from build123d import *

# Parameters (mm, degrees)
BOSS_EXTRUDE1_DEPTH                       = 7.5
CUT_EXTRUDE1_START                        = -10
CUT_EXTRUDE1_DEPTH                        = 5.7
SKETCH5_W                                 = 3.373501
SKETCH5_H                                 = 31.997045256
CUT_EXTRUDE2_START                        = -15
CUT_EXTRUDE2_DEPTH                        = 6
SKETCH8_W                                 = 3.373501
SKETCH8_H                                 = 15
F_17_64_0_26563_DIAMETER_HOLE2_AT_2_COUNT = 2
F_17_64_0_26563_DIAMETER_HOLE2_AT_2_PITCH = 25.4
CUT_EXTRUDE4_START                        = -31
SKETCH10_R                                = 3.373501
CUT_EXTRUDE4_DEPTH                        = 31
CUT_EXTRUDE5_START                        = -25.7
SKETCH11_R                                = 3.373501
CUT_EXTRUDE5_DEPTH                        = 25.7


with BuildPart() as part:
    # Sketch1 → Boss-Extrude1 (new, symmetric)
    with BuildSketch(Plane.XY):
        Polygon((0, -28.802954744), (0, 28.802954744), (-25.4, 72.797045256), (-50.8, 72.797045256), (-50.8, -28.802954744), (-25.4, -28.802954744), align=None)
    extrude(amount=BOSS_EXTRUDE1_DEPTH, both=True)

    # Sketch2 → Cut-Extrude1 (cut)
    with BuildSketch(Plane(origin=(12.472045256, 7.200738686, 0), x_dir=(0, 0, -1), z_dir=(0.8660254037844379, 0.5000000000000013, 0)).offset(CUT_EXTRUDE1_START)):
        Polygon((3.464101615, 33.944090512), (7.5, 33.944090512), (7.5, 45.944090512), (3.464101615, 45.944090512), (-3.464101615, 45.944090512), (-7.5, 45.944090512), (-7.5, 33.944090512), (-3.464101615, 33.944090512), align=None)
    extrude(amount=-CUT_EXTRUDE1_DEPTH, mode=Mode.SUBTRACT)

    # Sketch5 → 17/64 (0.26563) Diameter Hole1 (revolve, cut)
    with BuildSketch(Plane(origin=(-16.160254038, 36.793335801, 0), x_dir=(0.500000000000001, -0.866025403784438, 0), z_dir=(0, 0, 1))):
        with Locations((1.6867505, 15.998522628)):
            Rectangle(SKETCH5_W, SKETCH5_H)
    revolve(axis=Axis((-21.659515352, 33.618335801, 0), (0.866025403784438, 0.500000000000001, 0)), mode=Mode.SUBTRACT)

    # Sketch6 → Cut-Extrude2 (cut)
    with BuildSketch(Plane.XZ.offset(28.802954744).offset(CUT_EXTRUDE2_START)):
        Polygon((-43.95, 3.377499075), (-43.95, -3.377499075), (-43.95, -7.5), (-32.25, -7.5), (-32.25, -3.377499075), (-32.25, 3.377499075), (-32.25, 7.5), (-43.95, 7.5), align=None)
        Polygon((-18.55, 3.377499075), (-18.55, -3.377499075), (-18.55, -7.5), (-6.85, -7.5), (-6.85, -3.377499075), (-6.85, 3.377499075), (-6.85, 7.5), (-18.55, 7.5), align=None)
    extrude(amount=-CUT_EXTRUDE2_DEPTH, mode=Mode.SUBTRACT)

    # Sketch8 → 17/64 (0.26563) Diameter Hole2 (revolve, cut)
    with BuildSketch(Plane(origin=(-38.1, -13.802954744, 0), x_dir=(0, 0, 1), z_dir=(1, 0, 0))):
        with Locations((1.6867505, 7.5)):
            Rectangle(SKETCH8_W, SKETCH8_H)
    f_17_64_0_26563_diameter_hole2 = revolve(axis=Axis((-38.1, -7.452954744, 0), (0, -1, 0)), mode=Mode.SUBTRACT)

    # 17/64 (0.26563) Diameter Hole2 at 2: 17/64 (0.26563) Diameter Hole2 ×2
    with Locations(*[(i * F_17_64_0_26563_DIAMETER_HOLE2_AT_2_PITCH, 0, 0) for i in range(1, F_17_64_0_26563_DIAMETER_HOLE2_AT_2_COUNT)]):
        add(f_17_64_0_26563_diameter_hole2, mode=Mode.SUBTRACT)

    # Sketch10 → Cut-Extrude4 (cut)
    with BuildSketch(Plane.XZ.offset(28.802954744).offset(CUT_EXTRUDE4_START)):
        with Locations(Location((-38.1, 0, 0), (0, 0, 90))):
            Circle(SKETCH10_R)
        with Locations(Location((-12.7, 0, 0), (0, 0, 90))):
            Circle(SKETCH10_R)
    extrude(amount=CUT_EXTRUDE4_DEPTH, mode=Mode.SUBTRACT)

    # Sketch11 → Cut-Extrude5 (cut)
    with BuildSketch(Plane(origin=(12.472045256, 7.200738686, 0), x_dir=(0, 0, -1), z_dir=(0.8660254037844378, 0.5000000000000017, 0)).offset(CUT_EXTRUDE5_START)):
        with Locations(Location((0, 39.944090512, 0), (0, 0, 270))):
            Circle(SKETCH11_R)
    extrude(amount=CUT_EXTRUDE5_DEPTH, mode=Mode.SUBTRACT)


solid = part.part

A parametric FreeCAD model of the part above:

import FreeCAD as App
import Part
import Sketcher
Q = App.Units.Quantity

doc = App.newDocument("Part")
body = doc.addObject("PartDesign::Body", "Body")

# Sketch on XY plane
sketch1 = doc.addObject("Sketcher::SketchObject", "Sketch")
body.addObject(sketch1)
sketch1.AttachmentSupport = (doc.XY_Plane, [""])
sketch1.MapMode = "FlatFace"
sketch1.addGeometry(Part.LineSegment(App.Vector(0, -29, 0), App.Vector(0, 29, 0)), False)
sketch1.addGeometry(Part.LineSegment(App.Vector(0, 29, 0), App.Vector(-25, 73, 0)), False)
sketch1.addGeometry(Part.LineSegment(App.Vector(-25, 73, 0), App.Vector(-51, 73, 0)), False)
sketch1.addGeometry(Part.LineSegment(App.Vector(-51, 73, 0), App.Vector(-51, -29, 0)), False)
sketch1.addGeometry(Part.LineSegment(App.Vector(-51, -29, 0), App.Vector(0, -29, 0)), False)
sketch1.addConstraint(Sketcher.Constraint("Coincident", 0, 2, 1, 1))
sketch1.addConstraint(Sketcher.Constraint("Coincident", 1, 2, 2, 1))
sketch1.addConstraint(Sketcher.Constraint("Coincident", 2, 2, 3, 1))
sketch1.addConstraint(Sketcher.Constraint("Coincident", 3, 2, 4, 1))
sketch1.addConstraint(Sketcher.Constraint("Coincident", 4, 2, 0, 1))
sketch1.addConstraint(Sketcher.Constraint("Vertical", 0))
sketch1.addConstraint(Sketcher.Constraint("Horizontal", 2))
sketch1.addConstraint(Sketcher.Constraint("Vertical", 3))
sketch1.addConstraint(Sketcher.Constraint("Horizontal", 4))
sketch1.addConstraint(Sketcher.Constraint("Symmetric", 0, 2, 4, 2, -1, 1))
sketch1.addConstraint(Sketcher.Constraint("Angle", 1, Q("120 deg")))
sketch1.addConstraint(Sketcher.Constraint("DistanceX", 2, 2, 2, 1, Q("25.4 mm")))
sketch1.addConstraint(Sketcher.Constraint("DistanceX", 4, 1, 4, 2, Q("50.8 mm")))
sketch1.addConstraint(Sketcher.Constraint("DistanceY", 3, 2, 3, 1, Q("101.6 mm")))
pad1 = doc.addObject("PartDesign::Pad", "Pad")
body.addObject(pad1)
pad1.Profile = sketch1
pad1.Length = 15
pad1.Midplane = True

# Sketch on an angled plane
sketch2 = doc.addObject("Sketcher::SketchObject", "Sketch001")
body.addObject(sketch2)
sketch2.Placement = App.Placement(App.Vector(3.811791, 2.200739, 0), App.Rotation(App.Vector(0, 0, -1), App.Vector(-0.5, 0.866025404, 0), App.Vector(0.866025404, 0.5, 0), "ZXY"))
sketch2.addGeometry(Part.LineSegment(App.Vector(8, 34, 0), App.Vector(8, 46, 0)), False)
sketch2.addGeometry(Part.LineSegment(App.Vector(8, 46, 0), App.Vector(-8, 46, 0)), False)
sketch2.addGeometry(Part.LineSegment(App.Vector(-8, 46, 0), App.Vector(-8, 34, 0)), False)
sketch2.addGeometry(Part.LineSegment(App.Vector(-8, 34, 0), App.Vector(8, 34, 0)), False)
sketch2.addConstraint(Sketcher.Constraint("Coincident", 0, 2, 1, 1))
sketch2.addConstraint(Sketcher.Constraint("Coincident", 1, 2, 2, 1))
sketch2.addConstraint(Sketcher.Constraint("Coincident", 2, 2, 3, 1))
sketch2.addConstraint(Sketcher.Constraint("Coincident", 3, 2, 0, 1))
sketch2.addConstraint(Sketcher.Constraint("Vertical", 0))
sketch2.addConstraint(Sketcher.Constraint("Horizontal", 1))
sketch2.addConstraint(Sketcher.Constraint("Vertical", 2))
sketch2.addConstraint(Sketcher.Constraint("Horizontal", 3))
sketch2.addConstraint(Sketcher.Constraint("DistanceX", 1, 2, 1, 1, Q("15 mm")))
sketch2.addConstraint(Sketcher.Constraint("DistanceY", 0, 1, 0, 2, Q("12 mm")))
sketch2.addConstraint(Sketcher.Constraint("DistanceX", -1, 1, 0, 2, Q("7.5 mm")))
sketch2.addConstraint(Sketcher.Constraint("DistanceY", -1, 1, 0, 2, Q("45.944091 mm")))
pocket1 = doc.addObject("PartDesign::Pocket", "Pocket")
body.addObject(pocket1)
pocket1.Profile = sketch2
pocket1.Length = 5.7

# Sketch on XY plane
sketch3 = doc.addObject("Sketcher::SketchObject", "Sketch002")
body.addObject(sketch3)
sketch3.AttachmentSupport = (doc.XY_Plane, [""])
sketch3.MapMode = "FlatFace"
sketch3.addGeometry(Part.LineSegment(App.Vector(11.6, 52.8, 0), App.Vector(-16.2, 36.8, 0)), False)
sketch3.addGeometry(Part.LineSegment(App.Vector(-16.2, 36.8, 0), App.Vector(-14.5, 33.9, 0)), False)
sketch3.addGeometry(Part.LineSegment(App.Vector(-14.5, 33.9, 0), App.Vector(13.2, 49.9, 0)), False)
sketch3.addGeometry(Part.LineSegment(App.Vector(13.2, 49.9, 0), App.Vector(11.6, 52.8, 0)), False)
sketch3.addGeometry(Part.LineSegment(App.Vector(-16.2, 36.8, 0), App.Vector(11.6, 52.8, 0)), True)  # axis
sketch3.addConstraint(Sketcher.Constraint("Coincident", 0, 2, 1, 1))
sketch3.addConstraint(Sketcher.Constraint("Coincident", 1, 2, 2, 1))
sketch3.addConstraint(Sketcher.Constraint("Coincident", 2, 2, 3, 1))
sketch3.addConstraint(Sketcher.Constraint("Coincident", 3, 2, 0, 1))
sketch3.addConstraint(Sketcher.Constraint("Coincident", 4, 1, 0, 2))
sketch3.addConstraint(Sketcher.Constraint("Coincident", 4, 2, 3, 2))
sketch3.addConstraint(Sketcher.Constraint("Perpendicular", 0, 1))
sketch3.addConstraint(Sketcher.Constraint("Perpendicular", 1, 2))
sketch3.addConstraint(Sketcher.Constraint("Perpendicular", 2, 3))
sketch3.addConstraint(Sketcher.Constraint("Angle", 0, Q("-150 deg")))
sketch3.addConstraint(Sketcher.Constraint("DistanceX", -1, 1, 3, 2, Q("11.55 mm")))
sketch3.addConstraint(Sketcher.Constraint("Distance", 1, Q("3.373501 mm")))
sketch3.addConstraint(Sketcher.Constraint("DistanceY", -1, 1, 1, 2, Q("33.871798 mm")))
sketch3.addConstraint(Sketcher.Constraint("DistanceY", -1, 1, 2, 2, Q("49.870321 mm")))
groove = doc.addObject("PartDesign::Groove", "Groove")
body.addObject(groove)
groove.Profile = sketch3
groove.ReferenceAxis = (sketch3, ["Axis0"])
groove.Angle = 360

# Sketch on XZ plane
sketch4 = doc.addObject("Sketcher::SketchObject", "Sketch003")
body.addObject(sketch4)
sketch4.AttachmentSupport = (doc.XZ_Plane, [""])
sketch4.MapMode = "FlatFace"
sketch4.AttachmentOffset = App.Placement(App.Vector(0, 0, 13.802955), App.Rotation())
sketch4.addGeometry(Part.LineSegment(App.Vector(-44, -8, 0), App.Vector(-32, -8, 0)), False)
sketch4.addGeometry(Part.LineSegment(App.Vector(-32, -8, 0), App.Vector(-32, 8, 0)), False)
sketch4.addGeometry(Part.LineSegment(App.Vector(-32, 8, 0), App.Vector(-44, 8, 0)), False)
sketch4.addGeometry(Part.LineSegment(App.Vector(-44, 8, 0), App.Vector(-44, -8, 0)), False)
sketch4.addGeometry(Part.LineSegment(App.Vector(-19, -8, 0), App.Vector(-7, -8, 0)), False)
sketch4.addGeometry(Part.LineSegment(App.Vector(-7, -8, 0), App.Vector(-7, 8, 0)), False)
sketch4.addGeometry(Part.LineSegment(App.Vector(-7, 8, 0), App.Vector(-19, 8, 0)), False)
sketch4.addGeometry(Part.LineSegment(App.Vector(-19, 8, 0), App.Vector(-19, -8, 0)), False)
sketch4.addConstraint(Sketcher.Constraint("Coincident", 0, 2, 1, 1))
sketch4.addConstraint(Sketcher.Constraint("Coincident", 1, 2, 2, 1))
sketch4.addConstraint(Sketcher.Constraint("Coincident", 2, 2, 3, 1))
sketch4.addConstraint(Sketcher.Constraint("Coincident", 3, 2, 0, 1))
sketch4.addConstraint(Sketcher.Constraint("Coincident", 4, 2, 5, 1))
sketch4.addConstraint(Sketcher.Constraint("Coincident", 5, 2, 6, 1))
sketch4.addConstraint(Sketcher.Constraint("Coincident", 6, 2, 7, 1))
sketch4.addConstraint(Sketcher.Constraint("Coincident", 7, 2, 4, 1))
sketch4.addConstraint(Sketcher.Constraint("Horizontal", 0))
sketch4.addConstraint(Sketcher.Constraint("Vertical", 1))
sketch4.addConstraint(Sketcher.Constraint("Horizontal", 2))
sketch4.addConstraint(Sketcher.Constraint("Vertical", 3))
sketch4.addConstraint(Sketcher.Constraint("Horizontal", 4))
sketch4.addConstraint(Sketcher.Constraint("Vertical", 5))
sketch4.addConstraint(Sketcher.Constraint("Horizontal", 6))
sketch4.addConstraint(Sketcher.Constraint("Vertical", 7))
sketch4.addConstraint(Sketcher.Constraint("Horizontal", 3, 2, 4, 2))
sketch4.addConstraint(Sketcher.Constraint("Horizontal", 2, 2, 5, 2))
sketch4.addConstraint(Sketcher.Constraint("Equal", 2, 4))
sketch4.addConstraint(Sketcher.Constraint("DistanceY", 1, 1, 1, 2, Q("15 mm")))
sketch4.addConstraint(Sketcher.Constraint("DistanceX", 0, 1, 0, 2, Q("11.7 mm")))
sketch4.addConstraint(Sketcher.Constraint("DistanceY", 0, 2, -1, 1, Q("7.5 mm")))
sketch4.addConstraint(Sketcher.Constraint("DistanceX", 0, 2, 4, 2, Q("25.4 mm")))
sketch4.addConstraint(Sketcher.Constraint("DistanceX", 0, 2, -1, 1, Q("32.25 mm")))
pocket2 = doc.addObject("PartDesign::Pocket", "Pocket001")
body.addObject(pocket2)
pocket2.Profile = sketch4
pocket2.Length = 6

# Sketch on YZ plane
sketch5 = doc.addObject("Sketcher::SketchObject", "Sketch004")
body.addObject(sketch5)
sketch5.AttachmentSupport = (doc.YZ_Plane, [""])
sketch5.MapMode = "FlatFace"
sketch5.AttachmentOffset = App.Placement(App.Vector(0, 0, -38.1), App.Rotation())
sketch5.addGeometry(Part.LineSegment(App.Vector(-28.8, 0, 0), App.Vector(-13.8, 0, 0)), False)
sketch5.addGeometry(Part.LineSegment(App.Vector(-13.8, 0, 0), App.Vector(-13.8, 3.4, 0)), False)
sketch5.addGeometry(Part.LineSegment(App.Vector(-13.8, 3.4, 0), App.Vector(-28.8, 3.4, 0)), False)
sketch5.addGeometry(Part.LineSegment(App.Vector(-28.8, 3.4, 0), App.Vector(-28.8, 0, 0)), False)
sketch5.addConstraint(Sketcher.Constraint("Coincident", 0, 2, 1, 1))
sketch5.addConstraint(Sketcher.Constraint("Coincident", 1, 2, 2, 1))
sketch5.addConstraint(Sketcher.Constraint("Coincident", 2, 2, 3, 1))
sketch5.addConstraint(Sketcher.Constraint("Coincident", 3, 2, 0, 1))
sketch5.addConstraint(Sketcher.Constraint("Horizontal", 0))
sketch5.addConstraint(Sketcher.Constraint("Vertical", 1))
sketch5.addConstraint(Sketcher.Constraint("Horizontal", 2))
sketch5.addConstraint(Sketcher.Constraint("Vertical", 3))
sketch5.addConstraint(Sketcher.Constraint("PointOnObject", 0, 2, -1))
sketch5.addConstraint(Sketcher.Constraint("DistanceX", 0, 1, 0, 2, Q("15 mm")))
sketch5.addConstraint(Sketcher.Constraint("DistanceY", 1, 1, 1, 2, Q("3.373501 mm")))
sketch5.addConstraint(Sketcher.Constraint("DistanceX", 0, 2, -1, 1, Q("13.802955 mm")))
groove2 = doc.addObject("PartDesign::Groove", "Groove001")
body.addObject(groove2)
groove2.Profile = sketch5
groove2.ReferenceAxis = (sketch5, ["H_Axis"])
groove2.Angle = 360
doc.recompute()

linearpattern = doc.addObject("PartDesign::LinearPattern", "LinearPattern")
body.addObject(linearpattern)
linearpattern.Originals = [groove2]
linearpattern.Direction = (doc.X_Axis, [""])
linearpattern.Mode = "offset"
linearpattern.Offset = 25.4
linearpattern.Occurrences = 2
body.Tip = linearpattern

# Sketch on XZ plane
sketch6 = doc.addObject("Sketcher::SketchObject", "Sketch005")
body.addObject(sketch6)
sketch6.AttachmentSupport = (doc.XZ_Plane, [""])
sketch6.MapMode = "FlatFace"
sketch6.AttachmentOffset = App.Placement(App.Vector(0, 0, -2.197045), App.Rotation())
sketch6.addGeometry(Part.Circle(App.Vector(-38.1, 0, 0), App.Vector(0, 0, 1), 3.4), False)
sketch6.addGeometry(Part.Circle(App.Vector(-12.7, 0, 0), App.Vector(0, 0, 1), 3.4), False)
sketch6.addConstraint(Sketcher.Constraint("Equal", 0, 1))
sketch6.addConstraint(Sketcher.Constraint("PointOnObject", 0, 3, -1))
sketch6.addConstraint(Sketcher.Constraint("PointOnObject", 1, 3, -1))
sketch6.addConstraint(Sketcher.Constraint("DistanceX", 0, 3, -1, 1, Q("38.1 mm")))
sketch6.addConstraint(Sketcher.Constraint("DistanceX", 1, 3, -1, 1, Q("12.7 mm")))
sketch6.addConstraint(Sketcher.Constraint("Diameter", 0, Q("6.747002 mm")))
pocket3 = doc.addObject("PartDesign::Pocket", "Pocket002")
body.addObject(pocket3)
pocket3.Profile = sketch6
pocket3.Length = 31
pocket3.Reversed = True

# Sketch on an angled plane
sketch7 = doc.addObject("Sketcher::SketchObject", "Sketch006")
body.addObject(sketch7)
sketch7.Placement = App.Placement(App.Vector(-9.784808, -5.649261, 0), App.Rotation(App.Vector(0, 0, -1), App.Vector(-0.5, 0.866025404, 0), App.Vector(0.866025404, 0.5, 0), "ZXY"))
sketch7.addGeometry(Part.Circle(App.Vector(0, 39.9, 0), App.Vector(0, 0, 1), 3.4), False)
sketch7.addConstraint(Sketcher.Constraint("PointOnObject", 0, 3, -2))
sketch7.addConstraint(Sketcher.Constraint("Diameter", 0, Q("6.747002 mm")))
sketch7.addConstraint(Sketcher.Constraint("DistanceY", -1, 1, 0, 3, Q("39.944091 mm")))
pocket4 = doc.addObject("PartDesign::Pocket", "Pocket003")
body.addObject(pocket4)
pocket4.Profile = sketch7
pocket4.Length = 25.7
pocket4.Reversed = True

doc.recompute()
